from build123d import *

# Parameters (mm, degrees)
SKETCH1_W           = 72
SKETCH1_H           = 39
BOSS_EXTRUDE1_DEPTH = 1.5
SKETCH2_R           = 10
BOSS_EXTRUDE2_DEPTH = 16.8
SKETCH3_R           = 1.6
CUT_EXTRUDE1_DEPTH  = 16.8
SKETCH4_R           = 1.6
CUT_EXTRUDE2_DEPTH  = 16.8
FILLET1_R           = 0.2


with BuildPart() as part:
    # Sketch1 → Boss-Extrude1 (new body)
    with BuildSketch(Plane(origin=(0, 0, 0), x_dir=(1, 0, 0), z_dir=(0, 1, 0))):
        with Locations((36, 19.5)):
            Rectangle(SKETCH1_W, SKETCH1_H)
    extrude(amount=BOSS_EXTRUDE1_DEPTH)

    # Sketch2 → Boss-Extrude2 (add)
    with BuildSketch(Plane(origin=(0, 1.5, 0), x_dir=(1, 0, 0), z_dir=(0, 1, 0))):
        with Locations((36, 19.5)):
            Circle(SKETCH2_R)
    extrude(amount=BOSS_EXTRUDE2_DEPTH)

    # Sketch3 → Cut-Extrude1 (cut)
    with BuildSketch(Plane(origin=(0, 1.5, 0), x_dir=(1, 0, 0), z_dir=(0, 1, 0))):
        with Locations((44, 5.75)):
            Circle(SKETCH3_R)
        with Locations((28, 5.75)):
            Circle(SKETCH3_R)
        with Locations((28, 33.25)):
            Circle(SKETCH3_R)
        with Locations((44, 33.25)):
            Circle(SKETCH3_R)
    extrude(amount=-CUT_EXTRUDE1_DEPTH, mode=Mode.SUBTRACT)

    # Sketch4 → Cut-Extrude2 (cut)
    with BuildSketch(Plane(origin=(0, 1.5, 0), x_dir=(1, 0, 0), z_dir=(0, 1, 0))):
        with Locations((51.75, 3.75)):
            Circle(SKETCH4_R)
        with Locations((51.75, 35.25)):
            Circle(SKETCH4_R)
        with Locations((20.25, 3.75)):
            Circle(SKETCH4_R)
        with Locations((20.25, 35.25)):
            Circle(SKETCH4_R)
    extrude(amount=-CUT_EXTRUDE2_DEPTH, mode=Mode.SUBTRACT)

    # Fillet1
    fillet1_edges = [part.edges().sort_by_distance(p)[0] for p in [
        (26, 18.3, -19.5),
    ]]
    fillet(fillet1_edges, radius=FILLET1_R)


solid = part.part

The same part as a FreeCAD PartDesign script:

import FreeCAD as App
import Part
import Sketcher
from FreeCAD import Vector


def edges_at(feature, points):
    """Names of the edges that pass closest to the given points."""
    edges = feature.Shape.Edges
    near = lambda p: min(range(len(edges)), key=lambda i: edges[i].distToShape(Part.Vertex(*p))[0])
    return sorted({f"Edge{near(p) + 1}" for p in points})


def add_polygon(sketch, points):
    """Adds a closed chain of lines whose ends are joined by coincident constraints."""
    first, n = sketch.GeometryCount, len(points)
    for a, b in zip(points, points[1:] + points[:1]):
        sketch.addGeometry(Part.LineSegment(App.Vector(*a, 0), App.Vector(*b, 0)), False)
    for i in range(n):
        sketch.addConstraint(Sketcher.Constraint("Coincident", first + i, 2, first + (i + 1) % n, 1))

doc = App.newDocument("Part")
body = doc.addObject("PartDesign::Body", "Body")

sketch1 = body.newObject("Sketcher::SketchObject", "Sketch")
sketch1.AttachmentSupport = (doc.getObject("XZ_Plane"), [""])
sketch1.MapMode = "FlatFace"
add_polygon(sketch1, [(0, -39), (0, 0), (72, 0), (72, -39)])
sketch1.addConstraint(Sketcher.Constraint("Vertical", 0))
sketch1.addConstraint(Sketcher.Constraint("Horizontal", 1))
sketch1.addConstraint(Sketcher.Constraint("Vertical", 2))
sketch1.addConstraint(Sketcher.Constraint("Horizontal", 3))
sketch1.addConstraint(Sketcher.Constraint("Coincident", 0, 2, -1, 1))
sketch1.addConstraint(Sketcher.Constraint("DistanceX", 1, 1, 1, 2, 72.0))
sketch1.addConstraint(Sketcher.Constraint("DistanceY", 0, 1, 0, 2, 39.0))
pad1 = body.newObject("PartDesign::Pad", "Pad")
pad1.Profile = sketch1
pad1.Length = 1.5
pad1.Reversed = True

sketch2 = body.newObject("Sketcher::SketchObject", "Sketch001")
sketch2.AttachmentSupport = (doc.getObject("XZ_Plane"), [""])
sketch2.MapMode = "FlatFace"
sketch2.AttachmentOffset = App.Placement(Vector(0, 0, -1.5), App.Rotation())
sketch2.addGeometry(Part.Circle(Vector(36, -20, 0), Vector(0, 0, 1), 10), False)
sketch2.addConstraint(Sketcher.Constraint("Diameter", 0, 20.0))
sketch2.addConstraint(Sketcher.Constraint("DistanceX", -1, 1, 0, 3, 36.0))
sketch2.addConstraint(Sketcher.Constraint("DistanceY", 0, 3, -1, 1, 19.5))
pad2 = body.newObject("PartDesign::Pad", "Pad001")
pad2.Profile = sketch2
pad2.Length = 16.8
pad2.Reversed = True

sketch3 = body.newObject("Sketcher::SketchObject", "Sketch002")
sketch3.AttachmentSupport = (doc.getObject("XZ_Plane"), [""])
sketch3.MapMode = "FlatFace"
sketch3.AttachmentOffset = App.Placement(Vector(0, 0, -1.5), App.Rotation())
sketch3.addGeometry(Part.Circle(Vector(44, -5.8, 0), Vector(0, 0, 1), 1.6), False)
sketch3.addGeometry(Part.Circle(Vector(28, -5.8, 0), Vector(0, 0, 1), 1.6), False)
sketch3.addGeometry(Part.Circle(Vector(28, -33.2, 0), Vector(0, 0, 1), 1.6), False)
sketch3.addGeometry(Part.Circle(Vector(44, -33.2, 0), Vector(0, 0, 1), 1.6), False)
sketch3.addConstraint(Sketcher.Constraint("Equal", 0, 1))
sketch3.addConstraint(Sketcher.Constraint("Equal", 1, 2))
sketch3.addConstraint(Sketcher.Constraint("Equal", 2, 3))
sketch3.addConstraint(Sketcher.Constraint("Horizontal", 0, 3, 1, 3))
sketch3.addConstraint(Sketcher.Constraint("Horizontal", 2, 3, 3, 3))
sketch3.addConstraint(Sketcher.Constraint("Vertical", 1, 3, 2, 3))
sketch3.addConstraint(Sketcher.Constraint("Vertical", 0, 3, 3, 3))
sketch3.addConstraint(Sketcher.Constraint("Diameter", 0, 3.2))
sketch3.addConstraint(Sketcher.Constraint("DistanceX", -1, 1, 0, 3, 44.0))
sketch3.addConstraint(Sketcher.Constraint("DistanceX", -1, 1, 1, 3, 28.0))
sketch3.addConstraint(Sketcher.Constraint("DistanceY", 2, 3, 1, 3, 27.5))
sketch3.addConstraint(Sketcher.Constraint("DistanceY", 0, 3, -1, 1, 5.75))
pocket1 = body.newObject("PartDesign::Pocket", "Pocket")
pocket1.Profile = sketch3
pocket1.Length = 16.8
pocket1.Reversed = True

sketch4 = body.newObject("Sketcher::SketchObject", "Sketch003")
sketch4.AttachmentSupport = (doc.getObject("XZ_Plane"), [""])
sketch4.MapMode = "FlatFace"
sketch4.AttachmentOffset = App.Placement(Vector(0, 0, -1.5), App.Rotation())
sketch4.addGeometry(Part.Circle(Vector(51.8, -3.8, 0), Vector(0, 0, 1), 1.6), False)
sketch4.addGeometry(Part.Circle(Vector(51.8, -35.2, 0), Vector(0, 0, 1), 1.6), False)
sketch4.addGeometry(Part.Circle(Vector(20.2, -3.8, 0), Vector(0, 0, 1), 1.6), False)
sketch4.addGeometry(Part.Circle(Vector(20.2, -35.2, 0), Vector(0, 0, 1), 1.6), False)
sketch4.addConstraint(Sketcher.Constraint("Equal", 0, 1))
sketch4.addConstraint(Sketcher.Constraint("Equal", 1, 2))
sketch4.addConstraint(Sketcher.Constraint("Equal", 2, 3))
sketch4.addConstraint(Sketcher.Constraint("Horizontal", 0, 3, 2, 3))
sketch4.addConstraint(Sketcher.Constraint("Horizontal", 1, 3, 3, 3))
sketch4.addConstraint(Sketcher.Constraint("Vertical", 0, 3, 1, 3))
sketch4.addConstraint(Sketcher.Constraint("Vertical", 2, 3, 3, 3))
sketch4.addConstraint(Sketcher.Constraint("Diameter", 0, 3.2))
sketch4.addConstraint(Sketcher.Constraint("DistanceY", 1, 3, 0, 3, 31.5))
sketch4.addConstraint(Sketcher.Constraint("DistanceX", 2, 3, 0, 3, 31.5))
sketch4.addConstraint(Sketcher.Constraint("DistanceX", -1, 1, 0, 3, 51.75))
sketch4.addConstraint(Sketcher.Constraint("DistanceY", 0, 3, -1, 1, 3.75))
pocket2 = body.newObject("PartDesign::Pocket", "Pocket001")
pocket2.Profile = sketch4
pocket2.Length = 16.8
pocket2.Reversed = True
doc.recompute()

fillet = body.newObject("PartDesign::Fillet", "Fillet")
fillet.Base = (pocket2, edges_at(pocket2, [(26, 18.3, -19.5)]))
fillet.Radius = 0.2

doc.recompute()
